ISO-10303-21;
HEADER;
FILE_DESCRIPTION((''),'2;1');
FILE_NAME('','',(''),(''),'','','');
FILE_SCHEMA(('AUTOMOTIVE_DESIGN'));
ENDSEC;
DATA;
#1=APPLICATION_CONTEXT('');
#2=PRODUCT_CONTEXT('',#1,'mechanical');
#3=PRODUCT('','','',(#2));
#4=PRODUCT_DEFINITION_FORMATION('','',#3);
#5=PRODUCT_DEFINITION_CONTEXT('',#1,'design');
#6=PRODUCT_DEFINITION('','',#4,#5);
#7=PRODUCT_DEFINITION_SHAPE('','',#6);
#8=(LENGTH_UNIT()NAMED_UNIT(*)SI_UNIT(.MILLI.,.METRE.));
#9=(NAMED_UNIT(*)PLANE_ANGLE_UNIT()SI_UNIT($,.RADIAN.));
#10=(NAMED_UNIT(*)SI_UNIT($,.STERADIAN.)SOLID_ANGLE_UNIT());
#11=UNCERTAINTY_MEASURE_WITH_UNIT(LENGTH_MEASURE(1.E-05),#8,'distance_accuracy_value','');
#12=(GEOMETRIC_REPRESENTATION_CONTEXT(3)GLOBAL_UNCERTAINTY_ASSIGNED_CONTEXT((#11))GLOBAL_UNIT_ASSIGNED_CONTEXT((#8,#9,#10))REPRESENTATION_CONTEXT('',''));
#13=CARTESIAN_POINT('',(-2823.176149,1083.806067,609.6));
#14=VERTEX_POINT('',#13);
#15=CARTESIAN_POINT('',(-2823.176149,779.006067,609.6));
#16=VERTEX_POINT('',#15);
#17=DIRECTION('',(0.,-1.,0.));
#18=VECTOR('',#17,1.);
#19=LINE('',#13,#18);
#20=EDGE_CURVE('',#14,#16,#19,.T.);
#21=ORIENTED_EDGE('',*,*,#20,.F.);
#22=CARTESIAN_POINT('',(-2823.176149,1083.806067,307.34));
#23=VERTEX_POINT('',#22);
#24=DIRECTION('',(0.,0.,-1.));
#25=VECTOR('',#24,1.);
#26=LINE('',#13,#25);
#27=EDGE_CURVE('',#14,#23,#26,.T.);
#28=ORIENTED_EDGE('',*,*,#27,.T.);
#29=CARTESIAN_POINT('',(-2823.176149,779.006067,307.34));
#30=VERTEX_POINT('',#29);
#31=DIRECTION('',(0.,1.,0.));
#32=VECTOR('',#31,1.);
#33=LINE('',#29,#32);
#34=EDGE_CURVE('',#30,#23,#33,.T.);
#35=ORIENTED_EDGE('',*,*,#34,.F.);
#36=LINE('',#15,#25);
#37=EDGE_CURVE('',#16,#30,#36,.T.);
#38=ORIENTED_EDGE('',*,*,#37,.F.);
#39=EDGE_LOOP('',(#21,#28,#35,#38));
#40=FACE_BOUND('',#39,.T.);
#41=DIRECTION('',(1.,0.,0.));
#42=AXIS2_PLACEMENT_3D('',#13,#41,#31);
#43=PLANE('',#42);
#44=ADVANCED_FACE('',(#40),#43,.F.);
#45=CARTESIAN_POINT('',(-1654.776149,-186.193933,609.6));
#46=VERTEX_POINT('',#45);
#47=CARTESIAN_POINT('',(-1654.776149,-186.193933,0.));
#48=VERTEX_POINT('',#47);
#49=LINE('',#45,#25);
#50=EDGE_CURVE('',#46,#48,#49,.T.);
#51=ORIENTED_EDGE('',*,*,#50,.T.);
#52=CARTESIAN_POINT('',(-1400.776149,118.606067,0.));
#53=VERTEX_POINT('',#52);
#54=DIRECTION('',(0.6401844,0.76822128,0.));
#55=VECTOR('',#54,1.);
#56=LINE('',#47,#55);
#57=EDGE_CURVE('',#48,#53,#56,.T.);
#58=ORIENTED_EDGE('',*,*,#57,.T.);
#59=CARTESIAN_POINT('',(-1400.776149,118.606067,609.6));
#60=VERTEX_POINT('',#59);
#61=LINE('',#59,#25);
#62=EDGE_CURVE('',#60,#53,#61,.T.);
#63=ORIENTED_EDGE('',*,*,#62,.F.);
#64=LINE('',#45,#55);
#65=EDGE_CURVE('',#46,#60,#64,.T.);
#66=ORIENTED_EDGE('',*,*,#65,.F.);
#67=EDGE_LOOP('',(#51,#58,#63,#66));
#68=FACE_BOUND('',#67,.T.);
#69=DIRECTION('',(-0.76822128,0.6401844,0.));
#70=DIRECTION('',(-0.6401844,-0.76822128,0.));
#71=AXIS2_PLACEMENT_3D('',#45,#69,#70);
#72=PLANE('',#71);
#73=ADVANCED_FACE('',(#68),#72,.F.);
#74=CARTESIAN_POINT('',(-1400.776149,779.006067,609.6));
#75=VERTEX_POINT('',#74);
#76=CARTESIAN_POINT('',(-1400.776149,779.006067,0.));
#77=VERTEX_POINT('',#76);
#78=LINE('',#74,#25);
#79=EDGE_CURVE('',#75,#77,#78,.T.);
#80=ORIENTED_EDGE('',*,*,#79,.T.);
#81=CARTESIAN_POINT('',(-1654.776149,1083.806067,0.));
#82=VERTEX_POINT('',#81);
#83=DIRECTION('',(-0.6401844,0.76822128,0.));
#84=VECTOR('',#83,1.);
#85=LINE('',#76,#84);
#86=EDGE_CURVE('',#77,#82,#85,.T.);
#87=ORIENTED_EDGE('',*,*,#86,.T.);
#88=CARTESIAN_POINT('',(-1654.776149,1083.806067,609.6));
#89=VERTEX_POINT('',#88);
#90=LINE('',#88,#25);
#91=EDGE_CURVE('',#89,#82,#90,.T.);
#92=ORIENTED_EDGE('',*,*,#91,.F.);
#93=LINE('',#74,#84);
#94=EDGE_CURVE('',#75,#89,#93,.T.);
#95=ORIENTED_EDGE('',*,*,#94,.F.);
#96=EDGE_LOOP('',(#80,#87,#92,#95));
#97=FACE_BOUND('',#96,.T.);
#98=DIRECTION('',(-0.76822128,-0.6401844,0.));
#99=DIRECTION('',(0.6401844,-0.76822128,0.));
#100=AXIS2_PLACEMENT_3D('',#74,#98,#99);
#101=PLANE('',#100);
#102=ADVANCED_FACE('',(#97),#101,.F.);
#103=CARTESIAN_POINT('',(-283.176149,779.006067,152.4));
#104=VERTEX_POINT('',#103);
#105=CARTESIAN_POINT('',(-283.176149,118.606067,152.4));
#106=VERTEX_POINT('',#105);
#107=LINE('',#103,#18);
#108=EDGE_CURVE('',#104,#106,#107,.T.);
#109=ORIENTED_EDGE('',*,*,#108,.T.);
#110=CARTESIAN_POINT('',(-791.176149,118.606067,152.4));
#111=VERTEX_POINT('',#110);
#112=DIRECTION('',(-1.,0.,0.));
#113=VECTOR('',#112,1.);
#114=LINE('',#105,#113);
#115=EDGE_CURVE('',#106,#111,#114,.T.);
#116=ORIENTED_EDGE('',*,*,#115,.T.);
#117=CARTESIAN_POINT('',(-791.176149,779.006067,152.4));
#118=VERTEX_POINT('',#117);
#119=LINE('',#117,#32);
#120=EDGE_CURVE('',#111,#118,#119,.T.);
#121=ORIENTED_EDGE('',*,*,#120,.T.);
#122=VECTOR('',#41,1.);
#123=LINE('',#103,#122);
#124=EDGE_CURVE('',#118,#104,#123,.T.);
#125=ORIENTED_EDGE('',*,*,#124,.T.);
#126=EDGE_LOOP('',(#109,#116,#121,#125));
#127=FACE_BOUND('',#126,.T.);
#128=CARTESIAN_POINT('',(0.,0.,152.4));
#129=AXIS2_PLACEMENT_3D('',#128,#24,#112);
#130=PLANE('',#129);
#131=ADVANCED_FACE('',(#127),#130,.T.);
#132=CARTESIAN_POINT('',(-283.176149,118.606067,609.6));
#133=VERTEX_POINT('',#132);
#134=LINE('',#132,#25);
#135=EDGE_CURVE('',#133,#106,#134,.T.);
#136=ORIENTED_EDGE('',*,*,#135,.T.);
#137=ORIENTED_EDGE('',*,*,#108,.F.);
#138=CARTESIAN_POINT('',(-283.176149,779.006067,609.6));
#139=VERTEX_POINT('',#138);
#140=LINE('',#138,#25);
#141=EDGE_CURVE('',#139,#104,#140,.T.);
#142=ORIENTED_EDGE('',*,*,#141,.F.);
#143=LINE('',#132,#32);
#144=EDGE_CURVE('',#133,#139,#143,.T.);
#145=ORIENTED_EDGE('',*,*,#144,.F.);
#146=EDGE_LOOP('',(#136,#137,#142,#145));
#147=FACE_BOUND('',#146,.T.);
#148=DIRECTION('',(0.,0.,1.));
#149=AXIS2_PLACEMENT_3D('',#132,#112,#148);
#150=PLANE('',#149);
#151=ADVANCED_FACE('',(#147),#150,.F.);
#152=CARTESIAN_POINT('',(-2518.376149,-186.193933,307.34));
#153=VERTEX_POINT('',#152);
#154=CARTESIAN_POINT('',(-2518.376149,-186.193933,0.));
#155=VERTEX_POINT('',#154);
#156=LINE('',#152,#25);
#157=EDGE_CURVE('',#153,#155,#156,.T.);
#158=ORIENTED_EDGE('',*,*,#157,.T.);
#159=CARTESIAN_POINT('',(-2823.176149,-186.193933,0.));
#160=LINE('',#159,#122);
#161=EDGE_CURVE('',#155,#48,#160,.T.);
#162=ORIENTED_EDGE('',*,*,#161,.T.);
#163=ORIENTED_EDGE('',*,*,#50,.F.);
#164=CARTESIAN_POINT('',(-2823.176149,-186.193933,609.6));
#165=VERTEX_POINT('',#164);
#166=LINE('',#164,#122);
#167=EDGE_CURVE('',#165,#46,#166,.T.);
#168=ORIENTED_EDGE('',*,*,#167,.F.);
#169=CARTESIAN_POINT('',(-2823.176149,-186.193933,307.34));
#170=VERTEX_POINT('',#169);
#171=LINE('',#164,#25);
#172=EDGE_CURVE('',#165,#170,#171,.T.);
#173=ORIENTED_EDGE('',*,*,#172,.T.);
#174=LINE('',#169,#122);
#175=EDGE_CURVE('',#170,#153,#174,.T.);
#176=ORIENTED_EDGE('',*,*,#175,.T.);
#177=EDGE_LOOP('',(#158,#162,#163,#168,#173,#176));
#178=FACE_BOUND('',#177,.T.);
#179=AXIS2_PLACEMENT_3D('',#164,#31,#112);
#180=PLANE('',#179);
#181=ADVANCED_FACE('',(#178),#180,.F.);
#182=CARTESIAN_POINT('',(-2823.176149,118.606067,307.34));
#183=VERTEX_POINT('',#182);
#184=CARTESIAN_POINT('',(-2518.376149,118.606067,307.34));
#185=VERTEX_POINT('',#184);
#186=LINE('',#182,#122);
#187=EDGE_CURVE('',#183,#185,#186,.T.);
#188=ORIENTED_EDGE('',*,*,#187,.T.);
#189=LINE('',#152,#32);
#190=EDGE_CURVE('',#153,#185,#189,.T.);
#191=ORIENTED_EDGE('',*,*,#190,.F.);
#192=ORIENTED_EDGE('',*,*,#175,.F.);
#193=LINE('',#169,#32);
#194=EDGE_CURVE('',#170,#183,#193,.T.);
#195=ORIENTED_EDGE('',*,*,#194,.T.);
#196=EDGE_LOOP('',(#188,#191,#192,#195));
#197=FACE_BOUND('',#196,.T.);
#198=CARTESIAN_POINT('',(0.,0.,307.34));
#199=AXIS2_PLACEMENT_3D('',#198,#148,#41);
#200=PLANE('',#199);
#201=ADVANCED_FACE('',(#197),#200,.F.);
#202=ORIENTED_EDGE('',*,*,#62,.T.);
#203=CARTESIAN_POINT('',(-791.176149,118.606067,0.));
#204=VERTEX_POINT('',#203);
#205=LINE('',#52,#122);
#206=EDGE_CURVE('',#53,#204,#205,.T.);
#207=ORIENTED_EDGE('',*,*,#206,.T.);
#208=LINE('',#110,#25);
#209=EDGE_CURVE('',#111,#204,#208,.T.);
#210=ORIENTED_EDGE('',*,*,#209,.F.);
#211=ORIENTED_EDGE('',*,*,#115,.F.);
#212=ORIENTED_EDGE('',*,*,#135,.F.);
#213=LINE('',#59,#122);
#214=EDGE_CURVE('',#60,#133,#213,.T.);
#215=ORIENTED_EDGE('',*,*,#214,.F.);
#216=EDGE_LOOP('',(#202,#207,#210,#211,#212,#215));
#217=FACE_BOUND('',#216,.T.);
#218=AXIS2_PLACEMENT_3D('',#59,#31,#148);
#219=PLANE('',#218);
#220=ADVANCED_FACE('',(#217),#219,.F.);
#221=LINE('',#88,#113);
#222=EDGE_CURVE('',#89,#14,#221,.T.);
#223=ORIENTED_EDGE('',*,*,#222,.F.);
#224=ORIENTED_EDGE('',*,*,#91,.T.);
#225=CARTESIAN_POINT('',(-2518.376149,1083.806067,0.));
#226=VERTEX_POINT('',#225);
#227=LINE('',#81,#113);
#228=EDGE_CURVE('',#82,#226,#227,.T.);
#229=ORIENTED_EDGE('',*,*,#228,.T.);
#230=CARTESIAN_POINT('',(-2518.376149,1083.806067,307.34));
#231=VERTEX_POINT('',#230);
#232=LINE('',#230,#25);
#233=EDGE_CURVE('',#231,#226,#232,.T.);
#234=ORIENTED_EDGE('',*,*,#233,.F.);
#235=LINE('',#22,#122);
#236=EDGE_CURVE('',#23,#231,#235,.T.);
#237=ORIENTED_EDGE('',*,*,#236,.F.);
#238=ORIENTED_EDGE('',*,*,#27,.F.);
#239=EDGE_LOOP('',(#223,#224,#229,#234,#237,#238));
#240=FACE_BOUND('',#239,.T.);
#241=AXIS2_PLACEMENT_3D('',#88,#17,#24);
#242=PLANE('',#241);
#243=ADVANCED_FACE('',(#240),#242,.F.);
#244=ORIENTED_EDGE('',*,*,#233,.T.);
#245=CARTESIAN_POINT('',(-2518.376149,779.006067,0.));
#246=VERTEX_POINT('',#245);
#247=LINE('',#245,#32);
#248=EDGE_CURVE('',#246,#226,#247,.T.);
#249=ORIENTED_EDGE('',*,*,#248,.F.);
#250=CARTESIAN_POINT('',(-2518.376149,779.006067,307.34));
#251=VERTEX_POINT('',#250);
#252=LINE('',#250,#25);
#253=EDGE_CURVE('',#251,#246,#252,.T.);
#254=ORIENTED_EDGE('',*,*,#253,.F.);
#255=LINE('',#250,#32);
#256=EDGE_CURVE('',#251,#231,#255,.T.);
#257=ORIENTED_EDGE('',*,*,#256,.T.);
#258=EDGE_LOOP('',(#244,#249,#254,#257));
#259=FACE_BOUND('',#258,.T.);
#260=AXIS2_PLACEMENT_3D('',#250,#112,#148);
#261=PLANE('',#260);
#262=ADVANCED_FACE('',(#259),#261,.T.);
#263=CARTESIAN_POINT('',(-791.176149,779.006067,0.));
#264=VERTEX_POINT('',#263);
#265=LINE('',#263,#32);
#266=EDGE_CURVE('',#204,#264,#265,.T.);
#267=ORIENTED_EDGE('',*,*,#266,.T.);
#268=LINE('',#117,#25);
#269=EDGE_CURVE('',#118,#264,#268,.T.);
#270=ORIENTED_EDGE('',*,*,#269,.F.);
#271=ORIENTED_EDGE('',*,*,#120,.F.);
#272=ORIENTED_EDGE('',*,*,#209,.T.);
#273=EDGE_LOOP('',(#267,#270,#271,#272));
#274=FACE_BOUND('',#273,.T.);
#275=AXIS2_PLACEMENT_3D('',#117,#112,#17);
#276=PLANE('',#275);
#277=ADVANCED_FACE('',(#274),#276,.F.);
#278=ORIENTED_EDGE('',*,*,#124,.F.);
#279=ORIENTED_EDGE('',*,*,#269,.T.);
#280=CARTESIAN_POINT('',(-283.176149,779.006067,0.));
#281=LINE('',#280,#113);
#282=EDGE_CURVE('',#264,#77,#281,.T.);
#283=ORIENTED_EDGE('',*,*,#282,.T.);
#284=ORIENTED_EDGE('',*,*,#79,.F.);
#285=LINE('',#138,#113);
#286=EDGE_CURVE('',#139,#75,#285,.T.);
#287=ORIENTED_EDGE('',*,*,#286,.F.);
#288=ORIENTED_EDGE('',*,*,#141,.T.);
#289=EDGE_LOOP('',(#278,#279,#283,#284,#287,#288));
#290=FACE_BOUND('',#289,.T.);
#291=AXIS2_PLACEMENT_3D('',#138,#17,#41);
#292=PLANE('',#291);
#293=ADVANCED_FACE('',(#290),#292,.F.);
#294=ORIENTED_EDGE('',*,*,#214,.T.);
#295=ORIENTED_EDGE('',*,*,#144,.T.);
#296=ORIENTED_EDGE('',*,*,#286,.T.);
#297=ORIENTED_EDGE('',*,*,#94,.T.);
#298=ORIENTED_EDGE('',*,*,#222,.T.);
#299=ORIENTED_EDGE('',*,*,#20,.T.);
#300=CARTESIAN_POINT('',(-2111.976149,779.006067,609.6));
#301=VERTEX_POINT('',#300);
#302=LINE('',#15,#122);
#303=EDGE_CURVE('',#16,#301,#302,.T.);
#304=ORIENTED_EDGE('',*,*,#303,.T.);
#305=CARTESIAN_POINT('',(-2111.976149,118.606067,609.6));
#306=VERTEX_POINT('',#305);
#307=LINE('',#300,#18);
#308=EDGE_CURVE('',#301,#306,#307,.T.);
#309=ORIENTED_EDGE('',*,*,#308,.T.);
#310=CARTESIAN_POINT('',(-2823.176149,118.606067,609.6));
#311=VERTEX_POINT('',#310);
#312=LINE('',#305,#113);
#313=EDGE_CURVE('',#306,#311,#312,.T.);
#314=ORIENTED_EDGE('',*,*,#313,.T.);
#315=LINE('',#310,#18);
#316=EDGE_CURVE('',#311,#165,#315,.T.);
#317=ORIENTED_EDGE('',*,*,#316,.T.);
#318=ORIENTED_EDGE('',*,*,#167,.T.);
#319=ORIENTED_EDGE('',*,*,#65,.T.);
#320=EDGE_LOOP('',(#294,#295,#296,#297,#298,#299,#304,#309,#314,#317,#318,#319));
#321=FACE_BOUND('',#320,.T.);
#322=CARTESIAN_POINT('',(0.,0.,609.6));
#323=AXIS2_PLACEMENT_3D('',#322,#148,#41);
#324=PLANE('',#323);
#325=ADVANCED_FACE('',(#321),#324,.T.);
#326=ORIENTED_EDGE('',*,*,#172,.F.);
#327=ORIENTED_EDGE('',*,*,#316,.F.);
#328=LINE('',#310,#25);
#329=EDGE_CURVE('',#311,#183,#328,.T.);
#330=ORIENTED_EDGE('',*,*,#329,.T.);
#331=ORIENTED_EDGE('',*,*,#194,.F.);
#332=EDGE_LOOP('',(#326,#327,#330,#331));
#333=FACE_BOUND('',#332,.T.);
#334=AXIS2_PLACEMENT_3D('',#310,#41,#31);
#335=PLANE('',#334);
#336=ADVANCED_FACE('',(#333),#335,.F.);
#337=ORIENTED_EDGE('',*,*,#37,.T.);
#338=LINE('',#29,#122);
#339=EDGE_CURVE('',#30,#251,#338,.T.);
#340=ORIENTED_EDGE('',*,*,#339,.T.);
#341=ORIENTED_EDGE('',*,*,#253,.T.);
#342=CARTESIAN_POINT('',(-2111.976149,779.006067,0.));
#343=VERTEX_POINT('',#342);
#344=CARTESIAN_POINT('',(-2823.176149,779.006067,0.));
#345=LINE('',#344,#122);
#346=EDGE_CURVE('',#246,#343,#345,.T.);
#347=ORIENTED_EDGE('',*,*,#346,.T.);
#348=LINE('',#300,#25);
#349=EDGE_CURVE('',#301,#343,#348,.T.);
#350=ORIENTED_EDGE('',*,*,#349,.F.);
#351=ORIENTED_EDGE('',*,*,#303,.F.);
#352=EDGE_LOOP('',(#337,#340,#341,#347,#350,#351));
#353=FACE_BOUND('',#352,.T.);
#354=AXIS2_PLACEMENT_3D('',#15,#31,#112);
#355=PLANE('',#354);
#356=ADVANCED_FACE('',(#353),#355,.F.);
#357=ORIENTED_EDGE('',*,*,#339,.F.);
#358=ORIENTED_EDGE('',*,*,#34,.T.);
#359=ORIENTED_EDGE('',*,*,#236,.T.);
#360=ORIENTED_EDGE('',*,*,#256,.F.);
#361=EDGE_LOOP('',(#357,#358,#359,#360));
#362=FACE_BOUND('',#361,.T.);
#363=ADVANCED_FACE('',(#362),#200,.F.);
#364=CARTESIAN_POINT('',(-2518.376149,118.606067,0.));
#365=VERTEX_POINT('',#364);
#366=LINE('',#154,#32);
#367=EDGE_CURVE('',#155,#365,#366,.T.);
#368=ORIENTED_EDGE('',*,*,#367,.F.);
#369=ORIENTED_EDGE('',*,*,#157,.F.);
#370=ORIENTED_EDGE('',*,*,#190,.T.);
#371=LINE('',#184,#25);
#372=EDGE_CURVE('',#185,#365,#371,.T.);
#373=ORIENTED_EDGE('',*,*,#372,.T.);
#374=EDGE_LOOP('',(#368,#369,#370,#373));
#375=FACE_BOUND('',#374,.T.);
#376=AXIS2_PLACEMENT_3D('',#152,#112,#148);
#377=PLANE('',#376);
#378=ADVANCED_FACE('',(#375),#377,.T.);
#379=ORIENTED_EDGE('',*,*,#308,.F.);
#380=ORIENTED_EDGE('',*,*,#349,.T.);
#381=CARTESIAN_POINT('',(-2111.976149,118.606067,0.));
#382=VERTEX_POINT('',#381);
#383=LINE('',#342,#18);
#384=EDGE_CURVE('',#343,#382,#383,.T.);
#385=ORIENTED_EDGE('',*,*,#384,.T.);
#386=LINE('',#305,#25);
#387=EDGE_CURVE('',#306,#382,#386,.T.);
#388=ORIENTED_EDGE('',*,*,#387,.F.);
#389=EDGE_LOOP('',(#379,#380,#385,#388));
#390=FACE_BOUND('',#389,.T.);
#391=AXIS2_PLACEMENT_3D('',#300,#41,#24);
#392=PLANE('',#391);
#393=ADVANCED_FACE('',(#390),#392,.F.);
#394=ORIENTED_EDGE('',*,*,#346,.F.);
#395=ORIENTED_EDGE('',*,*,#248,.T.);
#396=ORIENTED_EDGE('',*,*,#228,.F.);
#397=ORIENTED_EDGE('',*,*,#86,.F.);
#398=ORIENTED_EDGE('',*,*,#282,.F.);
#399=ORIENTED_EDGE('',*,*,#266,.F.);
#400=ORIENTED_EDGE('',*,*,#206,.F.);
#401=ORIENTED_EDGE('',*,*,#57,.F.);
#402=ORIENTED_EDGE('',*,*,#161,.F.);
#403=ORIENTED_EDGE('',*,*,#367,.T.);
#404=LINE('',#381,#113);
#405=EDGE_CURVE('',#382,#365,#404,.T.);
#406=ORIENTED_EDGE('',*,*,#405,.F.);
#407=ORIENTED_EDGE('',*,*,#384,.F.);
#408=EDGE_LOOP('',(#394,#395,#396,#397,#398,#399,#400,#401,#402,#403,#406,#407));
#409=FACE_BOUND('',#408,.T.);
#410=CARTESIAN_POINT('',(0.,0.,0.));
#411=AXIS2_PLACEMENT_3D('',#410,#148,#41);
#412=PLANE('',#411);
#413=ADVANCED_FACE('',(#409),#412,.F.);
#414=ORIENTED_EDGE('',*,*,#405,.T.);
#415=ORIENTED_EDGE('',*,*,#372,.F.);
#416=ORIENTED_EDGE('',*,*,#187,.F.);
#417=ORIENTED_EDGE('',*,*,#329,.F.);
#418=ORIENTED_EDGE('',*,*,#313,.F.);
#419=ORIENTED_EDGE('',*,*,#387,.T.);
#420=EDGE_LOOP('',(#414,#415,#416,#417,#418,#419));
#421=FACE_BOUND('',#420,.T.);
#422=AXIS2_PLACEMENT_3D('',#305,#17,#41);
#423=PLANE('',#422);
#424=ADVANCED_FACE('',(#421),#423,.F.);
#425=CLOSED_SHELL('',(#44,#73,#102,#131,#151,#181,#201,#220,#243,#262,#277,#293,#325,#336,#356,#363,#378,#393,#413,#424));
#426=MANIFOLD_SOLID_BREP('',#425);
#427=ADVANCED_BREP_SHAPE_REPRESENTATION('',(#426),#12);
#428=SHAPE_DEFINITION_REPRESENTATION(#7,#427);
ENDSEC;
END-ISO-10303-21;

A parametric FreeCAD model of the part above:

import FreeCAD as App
import Part
import Sketcher
from FreeCAD import Vector
Q = App.Units.Quantity


def add_polygon(sketch, points):
    """Adds a closed chain of lines whose ends are joined by coincident constraints."""
    first, n = sketch.GeometryCount, len(points)
    for a, b in zip(points, points[1:] + points[:1]):
        sketch.addGeometry(Part.LineSegment(App.Vector(*a, 0), App.Vector(*b, 0)), False)
    for i in range(n):
        sketch.addConstraint(Sketcher.Constraint("Coincident", first + i, 2, first + (i + 1) % n, 1))

doc = App.newDocument("Part")
body = doc.addObject("PartDesign::Body", "Body")

sketch1 = doc.addObject("Sketcher::SketchObject", "Sketch")
body.addObject(sketch1)
sketch1.AttachmentSupport = (doc.XY_Plane, [""])
sketch1.MapMode = "FlatFace"
add_polygon(sketch1, [(-283, 779), (-1401, 779), (-1655, 1084), (-2823, 1084), (-2823, 779), (-2112, 779), (-2112, 119), (-2823, 119), (-2823, -186), (-1655, -186), (-1401, 119), (-283, 119)])
sketch1.addConstraint(Sketcher.Constraint("Horizontal", 0))
sketch1.addConstraint(Sketcher.Constraint("Horizontal", 2))
sketch1.addConstraint(Sketcher.Constraint("Vertical", 3))
sketch1.addConstraint(Sketcher.Constraint("Horizontal", 4))
sketch1.addConstraint(Sketcher.Constraint("Vertical", 5))
sketch1.addConstraint(Sketcher.Constraint("Horizontal", 6))
sketch1.addConstraint(Sketcher.Constraint("Vertical", 7))
sketch1.addConstraint(Sketcher.Constraint("Horizontal", 8))
sketch1.addConstraint(Sketcher.Constraint("Horizontal", 10))
sketch1.addConstraint(Sketcher.Constraint("Vertical", 11))
sketch1.addConstraint(Sketcher.Constraint("Horizontal", 0, 2, 3, 2))
sketch1.addConstraint(Sketcher.Constraint("Horizontal", 6, 2, 9, 2))
sketch1.addConstraint(Sketcher.Constraint("Vertical", 3, 2, 6, 2))
sketch1.addConstraint(Sketcher.Constraint("Vertical", 1, 2, 8, 2))
sketch1.addConstraint(Sketcher.Constraint("Vertical", 0, 2, 9, 2))
sketch1.addConstraint(Sketcher.Constraint("Equal", 3, 7))
sketch1.addConstraint(Sketcher.Constraint("DistanceX", 0, 2, 0, 1, Q("44 in")))
sketch1.addConstraint(Sketcher.Constraint("DistanceX", 2, 2, 2, 1, Q("46 in")))
sketch1.addConstraint(Sketcher.Constraint("DistanceX", 4, 1, 4, 2, Q("28 in")))
sketch1.addConstraint(Sketcher.Constraint("DistanceY", 3, 2, 3, 1, Q("12 in")))
sketch1.addConstraint(Sketcher.Constraint("DistanceY", 5, 2, 5, 1, Q("26 in")))
sketch1.addConstraint(Sketcher.Constraint("DistanceX", 1, 2, 0, 2, Q("10 in")))
sketch1.addConstraint(Sketcher.Constraint("DistanceX", 0, 2, -1, 1, 1400.776149))
sketch1.addConstraint(Sketcher.Constraint("DistanceY", -1, 1, 0, 2, 779.006067))
pad1 = doc.addObject("PartDesign::Pad", "Pad")
body.addObject(pad1)
pad1.Profile = sketch1
pad1.Length = Q("24 in")

sketch2 = doc.addObject("Sketcher::SketchObject", "Sketch001")
body.addObject(sketch2)
sketch2.AttachmentSupport = (doc.XY_Plane, [""])
sketch2.MapMode = "FlatFace"
add_polygon(sketch2, [(-283, 779), (-283, 119), (-791, 119), (-791, 779)])
sketch2.addConstraint(Sketcher.Constraint("Vertical", 0))
sketch2.addConstraint(Sketcher.Constraint("Horizontal", 1))
sketch2.addConstraint(Sketcher.Constraint("Vertical", 2))
sketch2.addConstraint(Sketcher.Constraint("Horizontal", 3))
sketch2.addConstraint(Sketcher.Constraint("DistanceX", 1, 2, 1, 1, Q("20 in")))
sketch2.addConstraint(Sketcher.Constraint("DistanceY", 0, 2, 0, 1, Q("26 in")))
sketch2.addConstraint(Sketcher.Constraint("DistanceX", 0, 2, -1, 1, 283.176149))
sketch2.addConstraint(Sketcher.Constraint("DistanceY", -1, 1, 0, 2, 118.606067))
pocket1 = doc.addObject("PartDesign::Pocket", "Pocket")
body.addObject(pocket1)
pocket1.Profile = sketch2
pocket1.Length = Q("6 in")
pocket1.Reversed = True

sketch3 = doc.addObject("Sketcher::SketchObject", "Sketch002")
body.addObject(sketch3)
sketch3.AttachmentSupport = (doc.XY_Plane, [""])
sketch3.MapMode = "FlatFace"
add_polygon(sketch3, [(-2518, 119), (-2518, -186), (-2823, -186), (-2823, 119)])
add_polygon(sketch3, [(-2518, 1084), (-2518, 779), (-2823, 779), (-2823, 1084)])
sketch3.addConstraint(Sketcher.Constraint("Vertical", 0))
sketch3.addConstraint(Sketcher.Constraint("Horizontal", 1))
sketch3.addConstraint(Sketcher.Constraint("Vertical", 2))
sketch3.addConstraint(Sketcher.Constraint("Horizontal", 3))
sketch3.addConstraint(Sketcher.Constraint("Vertical", 4))
sketch3.addConstraint(Sketcher.Constraint("Horizontal", 5))
sketch3.addConstraint(Sketcher.Constraint("Vertical", 6))
sketch3.addConstraint(Sketcher.Constraint("Horizontal", 7))
sketch3.addConstraint(Sketcher.Constraint("Vertical", 3, 2, 4, 2))
sketch3.addConstraint(Sketcher.Constraint("Vertical", 2, 2, 5, 2))
sketch3.addConstraint(Sketcher.Constraint("Equal", 7, 0))
sketch3.addConstraint(Sketcher.Constraint("Equal", 2, 4))
sketch3.addConstraint(Sketcher.Constraint("DistanceX", 1, 2, 1, 1, Q("12 in")))
sketch3.addConstraint(Sketcher.Constraint("DistanceY", 3, 2, 4, 2, Q("26 in")))
sketch3.addConstraint(Sketcher.Constraint("DistanceX", 0, 2, -1, 1, 2518.376149))
sketch3.addConstraint(Sketcher.Constraint("DistanceY", 0, 2, -1, 1, 186.193933))
pocket2 = doc.addObject("PartDesign::Pocket", "Pocket001")
body.addObject(pocket2)
pocket2.Profile = sketch3
pocket2.Length = Q("12.1 in")
pocket2.Reversed = True

doc.recompute()
